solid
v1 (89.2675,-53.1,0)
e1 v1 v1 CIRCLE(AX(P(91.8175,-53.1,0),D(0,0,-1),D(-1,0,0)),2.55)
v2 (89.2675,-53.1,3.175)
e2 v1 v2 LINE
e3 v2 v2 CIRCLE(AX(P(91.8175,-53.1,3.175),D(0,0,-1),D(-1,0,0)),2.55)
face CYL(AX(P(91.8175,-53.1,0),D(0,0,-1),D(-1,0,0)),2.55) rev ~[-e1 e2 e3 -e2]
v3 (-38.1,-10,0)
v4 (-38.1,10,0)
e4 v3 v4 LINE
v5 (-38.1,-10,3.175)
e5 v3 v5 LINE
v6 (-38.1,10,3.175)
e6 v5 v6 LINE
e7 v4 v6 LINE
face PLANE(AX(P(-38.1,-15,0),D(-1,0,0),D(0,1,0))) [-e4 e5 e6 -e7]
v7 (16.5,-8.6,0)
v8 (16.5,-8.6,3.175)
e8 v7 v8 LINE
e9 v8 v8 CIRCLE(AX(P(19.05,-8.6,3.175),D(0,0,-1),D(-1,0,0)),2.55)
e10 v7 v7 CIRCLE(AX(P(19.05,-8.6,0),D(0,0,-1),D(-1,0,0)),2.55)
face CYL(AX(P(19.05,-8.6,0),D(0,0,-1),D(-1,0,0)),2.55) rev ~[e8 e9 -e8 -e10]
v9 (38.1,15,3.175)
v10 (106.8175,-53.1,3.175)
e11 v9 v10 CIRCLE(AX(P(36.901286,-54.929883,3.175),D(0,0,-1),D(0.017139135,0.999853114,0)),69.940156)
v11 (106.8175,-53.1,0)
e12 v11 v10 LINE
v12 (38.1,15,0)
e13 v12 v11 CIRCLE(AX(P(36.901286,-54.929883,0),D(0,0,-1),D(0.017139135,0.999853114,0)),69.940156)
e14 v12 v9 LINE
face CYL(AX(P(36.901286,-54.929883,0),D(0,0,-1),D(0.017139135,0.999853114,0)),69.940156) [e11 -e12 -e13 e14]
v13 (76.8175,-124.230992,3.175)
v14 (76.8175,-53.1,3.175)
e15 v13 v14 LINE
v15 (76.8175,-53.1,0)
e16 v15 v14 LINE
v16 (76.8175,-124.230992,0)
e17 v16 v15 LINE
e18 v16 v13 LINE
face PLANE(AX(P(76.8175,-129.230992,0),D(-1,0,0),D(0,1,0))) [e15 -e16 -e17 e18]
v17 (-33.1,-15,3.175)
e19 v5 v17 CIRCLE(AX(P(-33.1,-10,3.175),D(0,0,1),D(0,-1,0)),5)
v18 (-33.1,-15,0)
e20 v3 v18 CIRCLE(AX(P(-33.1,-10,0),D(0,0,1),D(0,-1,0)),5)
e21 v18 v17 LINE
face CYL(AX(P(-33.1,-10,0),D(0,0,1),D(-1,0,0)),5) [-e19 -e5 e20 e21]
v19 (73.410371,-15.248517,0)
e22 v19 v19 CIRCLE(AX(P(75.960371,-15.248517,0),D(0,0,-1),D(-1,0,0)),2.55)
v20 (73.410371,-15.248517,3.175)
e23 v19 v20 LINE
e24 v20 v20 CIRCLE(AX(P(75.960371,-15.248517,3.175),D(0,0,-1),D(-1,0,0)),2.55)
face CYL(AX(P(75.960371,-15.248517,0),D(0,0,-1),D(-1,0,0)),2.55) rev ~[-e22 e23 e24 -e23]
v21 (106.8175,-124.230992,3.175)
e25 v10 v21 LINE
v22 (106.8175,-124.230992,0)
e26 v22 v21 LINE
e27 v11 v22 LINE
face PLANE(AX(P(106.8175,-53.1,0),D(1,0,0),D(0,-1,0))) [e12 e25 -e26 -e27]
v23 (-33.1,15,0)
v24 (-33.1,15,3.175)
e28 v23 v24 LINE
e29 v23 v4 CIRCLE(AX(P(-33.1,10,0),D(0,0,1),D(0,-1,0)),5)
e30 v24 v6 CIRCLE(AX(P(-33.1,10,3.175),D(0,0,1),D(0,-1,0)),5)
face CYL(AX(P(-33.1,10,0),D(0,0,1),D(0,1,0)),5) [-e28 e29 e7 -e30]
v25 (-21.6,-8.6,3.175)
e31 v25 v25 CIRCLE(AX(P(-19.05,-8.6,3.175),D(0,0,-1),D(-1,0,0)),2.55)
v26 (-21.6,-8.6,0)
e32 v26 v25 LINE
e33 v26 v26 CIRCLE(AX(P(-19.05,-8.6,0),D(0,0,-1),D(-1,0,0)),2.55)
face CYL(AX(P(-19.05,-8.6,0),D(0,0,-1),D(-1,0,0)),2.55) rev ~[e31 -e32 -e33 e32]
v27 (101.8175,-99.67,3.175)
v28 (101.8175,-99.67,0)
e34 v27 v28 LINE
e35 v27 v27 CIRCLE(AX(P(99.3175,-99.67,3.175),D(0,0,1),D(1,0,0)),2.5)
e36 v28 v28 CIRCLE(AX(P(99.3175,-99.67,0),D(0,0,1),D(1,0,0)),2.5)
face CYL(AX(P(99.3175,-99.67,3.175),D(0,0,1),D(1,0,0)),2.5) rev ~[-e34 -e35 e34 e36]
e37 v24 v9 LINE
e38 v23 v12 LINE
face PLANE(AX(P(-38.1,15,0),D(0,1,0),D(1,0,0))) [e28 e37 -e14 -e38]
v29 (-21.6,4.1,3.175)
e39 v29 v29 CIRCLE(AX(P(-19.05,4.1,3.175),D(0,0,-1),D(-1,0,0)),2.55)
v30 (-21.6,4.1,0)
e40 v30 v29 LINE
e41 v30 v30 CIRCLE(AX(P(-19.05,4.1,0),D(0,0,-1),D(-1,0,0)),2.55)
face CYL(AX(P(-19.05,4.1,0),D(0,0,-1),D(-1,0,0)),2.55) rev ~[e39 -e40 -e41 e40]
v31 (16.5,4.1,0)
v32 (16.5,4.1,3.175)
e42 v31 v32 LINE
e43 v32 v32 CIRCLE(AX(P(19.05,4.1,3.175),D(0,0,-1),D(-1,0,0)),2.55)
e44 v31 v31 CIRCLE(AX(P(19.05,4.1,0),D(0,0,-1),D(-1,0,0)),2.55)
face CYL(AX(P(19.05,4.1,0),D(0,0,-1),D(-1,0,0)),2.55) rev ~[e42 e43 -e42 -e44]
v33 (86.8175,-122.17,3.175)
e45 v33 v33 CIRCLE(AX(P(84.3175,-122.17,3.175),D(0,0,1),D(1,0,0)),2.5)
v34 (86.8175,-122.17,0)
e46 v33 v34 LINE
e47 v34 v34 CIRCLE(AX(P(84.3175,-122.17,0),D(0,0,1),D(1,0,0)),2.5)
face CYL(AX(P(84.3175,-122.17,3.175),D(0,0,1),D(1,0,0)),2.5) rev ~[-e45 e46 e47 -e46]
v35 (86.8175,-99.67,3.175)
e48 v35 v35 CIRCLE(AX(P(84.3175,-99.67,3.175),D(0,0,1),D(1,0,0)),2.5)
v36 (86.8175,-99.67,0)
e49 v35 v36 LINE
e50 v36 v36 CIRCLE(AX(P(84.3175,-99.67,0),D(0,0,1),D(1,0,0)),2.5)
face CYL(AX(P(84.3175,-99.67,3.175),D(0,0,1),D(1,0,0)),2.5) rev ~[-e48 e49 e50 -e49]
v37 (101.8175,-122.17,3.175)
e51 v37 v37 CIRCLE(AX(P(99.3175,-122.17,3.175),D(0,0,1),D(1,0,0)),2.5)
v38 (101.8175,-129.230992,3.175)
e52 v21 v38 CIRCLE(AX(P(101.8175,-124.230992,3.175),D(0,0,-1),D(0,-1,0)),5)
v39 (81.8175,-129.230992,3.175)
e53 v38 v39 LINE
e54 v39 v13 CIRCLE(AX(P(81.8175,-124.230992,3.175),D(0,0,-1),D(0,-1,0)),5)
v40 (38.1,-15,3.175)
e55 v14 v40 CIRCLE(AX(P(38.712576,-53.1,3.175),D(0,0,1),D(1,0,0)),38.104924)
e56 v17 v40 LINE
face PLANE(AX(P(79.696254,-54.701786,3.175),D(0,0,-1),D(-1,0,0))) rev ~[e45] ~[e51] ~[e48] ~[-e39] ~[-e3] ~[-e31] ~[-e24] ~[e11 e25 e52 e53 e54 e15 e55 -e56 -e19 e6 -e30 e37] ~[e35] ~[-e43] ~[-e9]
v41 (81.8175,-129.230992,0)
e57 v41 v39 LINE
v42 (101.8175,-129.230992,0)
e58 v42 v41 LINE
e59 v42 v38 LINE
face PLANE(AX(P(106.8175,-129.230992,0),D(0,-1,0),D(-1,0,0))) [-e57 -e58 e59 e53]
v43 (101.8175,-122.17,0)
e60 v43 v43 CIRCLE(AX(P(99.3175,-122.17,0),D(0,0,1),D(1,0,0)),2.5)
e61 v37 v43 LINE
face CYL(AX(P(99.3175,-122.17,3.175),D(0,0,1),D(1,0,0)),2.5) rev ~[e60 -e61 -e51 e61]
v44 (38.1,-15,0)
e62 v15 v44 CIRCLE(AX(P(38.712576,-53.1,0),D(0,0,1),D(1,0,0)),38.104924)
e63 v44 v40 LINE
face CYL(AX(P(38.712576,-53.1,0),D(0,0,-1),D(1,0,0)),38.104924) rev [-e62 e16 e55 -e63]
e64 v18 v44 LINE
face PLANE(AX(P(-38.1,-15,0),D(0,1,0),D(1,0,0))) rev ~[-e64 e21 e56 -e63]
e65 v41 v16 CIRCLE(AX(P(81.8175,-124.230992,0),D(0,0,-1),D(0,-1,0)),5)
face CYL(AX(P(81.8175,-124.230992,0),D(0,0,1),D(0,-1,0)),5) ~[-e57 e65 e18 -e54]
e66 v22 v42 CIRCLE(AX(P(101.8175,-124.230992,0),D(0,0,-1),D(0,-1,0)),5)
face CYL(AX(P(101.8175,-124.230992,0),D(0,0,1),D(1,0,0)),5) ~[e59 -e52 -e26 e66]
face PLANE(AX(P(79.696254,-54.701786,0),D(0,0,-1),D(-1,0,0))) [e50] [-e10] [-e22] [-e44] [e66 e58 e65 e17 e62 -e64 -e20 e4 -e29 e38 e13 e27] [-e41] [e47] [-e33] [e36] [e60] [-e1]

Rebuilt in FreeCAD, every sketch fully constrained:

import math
import FreeCAD as App
import Part
import Sketcher
from FreeCAD import Vector


def edges_at(feature, points):
    """Names of the edges that pass closest to the given points."""
    edges = feature.Shape.Edges
    near = lambda p: min(range(len(edges)), key=lambda i: edges[i].distToShape(Part.Vertex(*p))[0])
    return sorted({f"Edge{near(p) + 1}" for p in points})

doc = App.newDocument("Part")
params = doc.addObject("Spreadsheet::Sheet", "Params")
for row, (alias, value) in enumerate([
    ("sketch1_height", "30 mm"),
    ("sketch1_width", "76.2 mm"),
    ("pad1_length", "3.175 mm"),
    ("sketch2_width", "30 mm"),
    ("pad2_length", "3.175 mm"),
    ("fillet_radius", "5 mm"),
    ("sketch3_diameter", "5 mm"),
    ("sketch4_diameter", "5.1 mm"),
    ("sketch5_diameter", "5.1 mm"),
    ("pocket3_length", "10 mm"),
], start=1):
    params.set(f"A{row}", alias)
    params.set(f"B{row}", "=" + value)
    params.setAlias(f"B{row}", alias)

body = doc.addObject("PartDesign::Body", "Body")

# Sketch on XY plane
sketch1 = body.newObject("Sketcher::SketchObject", "Sketch")
sketch1.AttachmentSupport = (doc.getObject("XY_Plane"), [""])
sketch1.MapMode = "FlatFace"
sketch1.addGeometry(Part.LineSegment(Vector(-38.1, 15, 0), Vector(-38.1, -15, 0)), False)
sketch1.addGeometry(Part.LineSegment(Vector(-38.1, -15, 0), Vector(38.1, -15, 0)), False)
sketch1.addGeometry(Part.LineSegment(Vector(38.1, -15, 0), Vector(38.1, 15, 0)), False)
sketch1.addGeometry(Part.LineSegment(Vector(38.1, 15, 0), Vector(-38.1, 15, 0)), False)
sketch1.addConstraint(Sketcher.Constraint("Coincident", 0, 2, 1, 1))
sketch1.addConstraint(Sketcher.Constraint("Coincident", 1, 2, 2, 1))
sketch1.addConstraint(Sketcher.Constraint("Coincident", 2, 2, 3, 1))
sketch1.addConstraint(Sketcher.Constraint("Coincident", 3, 2, 0, 1))
sketch1.addConstraint(Sketcher.Constraint("Vertical", 0))
sketch1.addConstraint(Sketcher.Constraint("Horizontal", 1))
sketch1.addConstraint(Sketcher.Constraint("Vertical", 2))
sketch1.addConstraint(Sketcher.Constraint("Horizontal", 3))
sketch1.addConstraint(Sketcher.Constraint("Symmetric", 0, 2, 2, 2, -1, 1))
sketch1.addConstraint(Sketcher.Constraint("DistanceY", 0, 2, 0, 1, 30.0))
sketch1.addConstraint(Sketcher.Constraint("DistanceX", 1, 1, 1, 2, 76.2))
sketch1.setExpression("Constraints[9]", "Params.sketch1_height")
sketch1.setExpression("Constraints[10]", "Params.sketch1_width")
pad1 = body.newObject("PartDesign::Pad", "Pad")
pad1.Profile = sketch1
pad1.setExpression("Length", "Params.pad1_length")

# Sketch on XY plane
sketch2 = body.newObject("Sketcher::SketchObject", "Sketch001")
sketch2.AttachmentSupport = (doc.getObject("XY_Plane"), [""])
sketch2.MapMode = "FlatFace"
sketch2.addGeometry(Part.ArcOfCircle(Part.Circle(Vector(36.901286, -54.929883, 0), Vector(0, 0, 1), 69.940156), math.radians(1.499232), math.radians(89.017952)), False)
sketch2.addGeometry(Part.LineSegment(Vector(106.8175, -53.1, 0), Vector(106.8175, -129.230992, 0)), False)
sketch2.addGeometry(Part.LineSegment(Vector(106.8175, -129.230992, 0), Vector(76.8175, -129.230992, 0)), False)
sketch2.addGeometry(Part.LineSegment(Vector(76.8175, -129.230992, 0), Vector(76.8175, -53.1, 0)), False)
sketch2.addGeometry(Part.ArcOfCircle(Part.Circle(Vector(38.712576, -53.1, 0), Vector(0, 0, 1), 38.104924), math.radians(0), math.radians(90.921128)), False)
sketch2.addGeometry(Part.LineSegment(Vector(38.1, -15, 0), Vector(38.1, 15, 0)), False)
sketch2.addConstraint(Sketcher.Constraint("Coincident", 0, 1, 1, 1))
sketch2.addConstraint(Sketcher.Constraint("Coincident", 1, 2, 2, 1))
sketch2.addConstraint(Sketcher.Constraint("Coincident", 2, 2, 3, 1))
sketch2.addConstraint(Sketcher.Constraint("Tangent", 3, 2, 4, 1))
sketch2.addConstraint(Sketcher.Constraint("Coincident", 4, 2, 5, 1))
sketch2.addConstraint(Sketcher.Constraint("Coincident", 5, 2, 0, 2))
sketch2.addConstraint(Sketcher.Constraint("Vertical", 1))
sketch2.addConstraint(Sketcher.Constraint("Horizontal", 2))
sketch2.addConstraint(Sketcher.Constraint("Vertical", 3))
sketch2.addConstraint(Sketcher.Constraint("Vertical", 5))
sketch2.addConstraint(Sketcher.Constraint("Horizontal", 4, 3, 0, 1))
sketch2.addConstraint(Sketcher.Constraint("Equal", 2, 5))
sketch2.addConstraint(Sketcher.Constraint("DistanceX", 2, 2, 2, 1, 30.0))
sketch2.addConstraint(Sketcher.Constraint("DistanceY", 4, 2, -1, 1, 15.0))
sketch2.addConstraint(Sketcher.Constraint("DistanceY", 4, 3, -1, 1, 53.1))
sketch2.addConstraint(Sketcher.Constraint("DistanceX", -1, 1, 4, 2, 38.1))
sketch2.addConstraint(Sketcher.Constraint("Radius", 0, 69.940156))
sketch2.addConstraint(Sketcher.Constraint("Radius", 4, 38.104924))
sketch2.addConstraint(Sketcher.Constraint("DistanceY", 1, 2, 1, 1, 76.130992))
sketch2.setExpression("Constraints[12]", "Params.sketch2_width")
pad2 = body.newObject("PartDesign::Pad", "Pad001")
pad2.Profile = sketch2
pad2.setExpression("Length", "Params.pad2_length")
doc.recompute()

fillet = body.newObject("PartDesign::Fillet", "Fillet")
fillet.Base = (pad2, edges_at(pad2, [
    (106.817, -129.231, 1.587),
    (76.817, -129.231, 1.587),
    (-38.1, 15, 1.587),
    (-38.1, -15, 1.587),
]))
fillet.setExpression("Radius", "Params.fillet_radius")

# Sketch on XY plane
sketch3 = body.newObject("Sketcher::SketchObject", "Sketch002")
sketch3.AttachmentSupport = (doc.getObject("XY_Plane"), [""])
sketch3.MapMode = "FlatFace"
sketch3.AttachmentOffset = App.Placement(Vector(0, 0, 3.175), App.Rotation())
sketch3.addGeometry(Part.Circle(Vector(99.3175, -122.17, 0), Vector(0, 0, 1), 2.5), False)
sketch3.addGeometry(Part.Circle(Vector(84.3175, -122.17, 0), Vector(0, 0, 1), 2.5), False)
sketch3.addGeometry(Part.Circle(Vector(84.3175, -99.67, 0), Vector(0, 0, 1), 2.5), False)
sketch3.addGeometry(Part.Circle(Vector(99.3175, -99.67, 0), Vector(0, 0, 1), 2.5), False)
sketch3.addConstraint(Sketcher.Constraint("Equal", 0, 1))
sketch3.addConstraint(Sketcher.Constraint("Equal", 1, 2))
sketch3.addConstraint(Sketcher.Constraint("Equal", 2, 3))
sketch3.addConstraint(Sketcher.Constraint("Horizontal", 0, 3, 1, 3))
sketch3.addConstraint(Sketcher.Constraint("Horizontal", 2, 3, 3, 3))
sketch3.addConstraint(Sketcher.Constraint("Vertical", 1, 3, 2, 3))
sketch3.addConstraint(Sketcher.Constraint("Vertical", 0, 3, 3, 3))
sketch3.addConstraint(Sketcher.Constraint("Diameter", 0, 5.0))
sketch3.addConstraint(Sketcher.Constraint("DistanceX", 1, 3, 0, 3, 15.0))
sketch3.addConstraint(Sketcher.Constraint("DistanceY", 1, 3, 2, 3, 22.5))
sketch3.addConstraint(Sketcher.Constraint("DistanceY", 0, 3, -1, 1, 122.17))
sketch3.addConstraint(Sketcher.Constraint("DistanceX", -1, 1, 0, 3, 99.3175))
sketch3.setExpression("Constraints[7]", "Params.sketch3_diameter")
pocket1 = body.newObject("PartDesign::Pocket", "Pocket")
pocket1.Profile = sketch3
pocket1.Type = "ThroughAll"

# Sketch on XY plane
sketch4 = body.newObject("Sketcher::SketchObject", "Sketch003")
sketch4.AttachmentSupport = (doc.getObject("XY_Plane"), [""])
sketch4.MapMode = "FlatFace"
sketch4.addGeometry(Part.Circle(Vector(19.05, -8.6, 0), Vector(0, 0, 1), 2.55), False)
sketch4.addGeometry(Part.Circle(Vector(-19.05, -8.6, 0), Vector(0, 0, 1), 2.55), False)
sketch4.addGeometry(Part.Circle(Vector(-19.05, 4.1, 0), Vector(0, 0, 1), 2.55), False)
sketch4.addGeometry(Part.Circle(Vector(19.05, 4.1, 0), Vector(0, 0, 1), 2.55), False)
sketch4.addConstraint(Sketcher.Constraint("Equal", 0, 1))
sketch4.addConstraint(Sketcher.Constraint("Equal", 1, 2))
sketch4.addConstraint(Sketcher.Constraint("Equal", 2, 3))
sketch4.addConstraint(Sketcher.Constraint("Symmetric", 0, 3, 1, 3, -2))
sketch4.addConstraint(Sketcher.Constraint("Symmetric", 2, 3, 3, 3, -2))
sketch4.addConstraint(Sketcher.Constraint("Vertical", 1, 3, 2, 3))
sketch4.addConstraint(Sketcher.Constraint("Diameter", 0, 5.1))
sketch4.addConstraint(Sketcher.Constraint("DistanceY", 0, 3, -1, 1, 8.6))
sketch4.addConstraint(Sketcher.Constraint("DistanceY", -1, 1, 2, 3, 4.1))
sketch4.addConstraint(Sketcher.Constraint("DistanceX", 1, 3, 0, 3, 38.1))
sketch4.setExpression("Constraints[6]", "Params.sketch4_diameter")
pocket2 = body.newObject("PartDesign::Pocket", "Pocket001")
pocket2.Profile = sketch4
pocket2.Type = "ThroughAll"
pocket2.Reversed = True

# Sketch on XY plane
sketch5 = body.newObject("Sketcher::SketchObject", "Sketch004")
sketch5.AttachmentSupport = (doc.getObject("XY_Plane"), [""])
sketch5.MapMode = "FlatFace"
sketch5.addGeometry(Part.Circle(Vector(75.960371, -15.248517, 0), Vector(0, 0, 1), 2.55), False)
sketch5.addGeometry(Part.Circle(Vector(91.8175, -53.1, 0), Vector(0, 0, 1), 2.55), False)
sketch5.addConstraint(Sketcher.Constraint("Equal", 0, 1))
sketch5.addConstraint(Sketcher.Constraint("Diameter", 0, 5.1))
sketch5.addConstraint(Sketcher.Constraint("DistanceY", 1, 3, -1, 1, 53.1))
sketch5.addConstraint(Sketcher.Constraint("DistanceX", -1, 1, 1, 3, 91.8175))
sketch5.addConstraint(Sketcher.Constraint("DistanceX", -1, 1, 0, 3, 75.960371))
sketch5.addConstraint(Sketcher.Constraint("DistanceY", 0, 3, -1, 1, 15.248517))
sketch5.setExpression("Constraints[1]", "Params.sketch5_diameter")
pocket3 = body.newObject("PartDesign::Pocket", "Pocket002")
pocket3.Profile = sketch5
pocket3.setExpression("Length", "Params.pocket3_length")
pocket3.Reversed = True

doc.recompute()
